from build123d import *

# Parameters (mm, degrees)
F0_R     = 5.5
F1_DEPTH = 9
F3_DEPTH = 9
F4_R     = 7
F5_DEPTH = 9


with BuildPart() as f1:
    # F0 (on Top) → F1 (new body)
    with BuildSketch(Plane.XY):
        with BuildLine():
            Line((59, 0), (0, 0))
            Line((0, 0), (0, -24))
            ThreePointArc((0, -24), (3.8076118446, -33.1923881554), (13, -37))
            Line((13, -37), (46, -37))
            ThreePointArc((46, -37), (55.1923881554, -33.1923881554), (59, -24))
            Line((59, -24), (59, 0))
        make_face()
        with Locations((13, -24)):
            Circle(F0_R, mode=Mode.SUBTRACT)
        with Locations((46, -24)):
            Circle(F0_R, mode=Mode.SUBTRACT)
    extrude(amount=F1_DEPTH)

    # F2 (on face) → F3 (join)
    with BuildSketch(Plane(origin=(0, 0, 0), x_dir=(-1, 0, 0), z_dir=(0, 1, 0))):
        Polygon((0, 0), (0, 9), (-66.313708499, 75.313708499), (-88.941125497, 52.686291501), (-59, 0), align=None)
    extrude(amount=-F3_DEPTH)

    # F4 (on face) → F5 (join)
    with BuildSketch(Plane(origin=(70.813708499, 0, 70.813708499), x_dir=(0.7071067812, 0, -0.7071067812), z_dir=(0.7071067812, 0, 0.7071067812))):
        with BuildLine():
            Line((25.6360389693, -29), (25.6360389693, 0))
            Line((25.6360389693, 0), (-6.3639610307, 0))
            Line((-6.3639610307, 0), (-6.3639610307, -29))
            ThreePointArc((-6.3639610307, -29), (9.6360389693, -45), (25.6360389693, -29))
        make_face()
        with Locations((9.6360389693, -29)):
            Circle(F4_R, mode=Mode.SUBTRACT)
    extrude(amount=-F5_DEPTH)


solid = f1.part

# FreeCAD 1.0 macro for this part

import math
import FreeCAD as App
import Part
import Sketcher

V = App.Vector
Q = App.Units.Quantity


def add_polygon(sketch, points):
    """Adds a closed chain of lines whose ends are joined by coincident constraints."""
    first, n = sketch.GeometryCount, len(points)
    for a, b in zip(points, points[1:] + points[:1]):
        sketch.addGeometry(Part.LineSegment(App.Vector(*a, 0), App.Vector(*b, 0)), False)
    for i in range(n):
        sketch.addConstraint(Sketcher.Constraint("Coincident", first + i, 2, first + (i + 1) % n, 1))

doc = App.newDocument("Part")
body = doc.addObject("PartDesign::Body", "Body")

sketch1 = body.newObject("Sketcher::SketchObject", "Sketch")
sketch1.AttachmentSupport = (doc.getObject("XY_Plane"), [""])
sketch1.MapMode = "FlatFace"
sketch1.addGeometry(Part.LineSegment(V(59, 0, 0), V(0, 0, 0)), False)
sketch1.addGeometry(Part.LineSegment(V(0, 0, 0), V(0, -24, 0)), False)
sketch1.addGeometry(Part.ArcOfCircle(Part.Circle(V(13, -24, 0), V(0, 0, 1), 13), math.radians(180), math.radians(270)), False)
sketch1.addGeometry(Part.LineSegment(V(13, -37, 0), V(46, -37, 0)), False)
sketch1.addGeometry(Part.ArcOfCircle(Part.Circle(V(46, -24, 0), V(0, 0, 1), 13), math.radians(-90), math.radians(0)), False)
sketch1.addGeometry(Part.LineSegment(V(59, -24, 0), V(59, 0, 0)), False)
sketch1.addGeometry(Part.Circle(V(13, -24, 0), V(0, 0, 1), 6), False)
sketch1.addGeometry(Part.Circle(V(46, -24, 0), V(0, 0, 1), 6), False)
sketch1.addConstraint(Sketcher.Constraint("Coincident", 0, 2, 1, 1))
sketch1.addConstraint(Sketcher.Constraint("Tangent", 1, 2, 2, 1))
sketch1.addConstraint(Sketcher.Constraint("Tangent", 2, 2, 3, 1))
sketch1.addConstraint(Sketcher.Constraint("Tangent", 3, 2, 4, 1))
sketch1.addConstraint(Sketcher.Constraint("Tangent", 4, 2, 5, 1))
sketch1.addConstraint(Sketcher.Constraint("Coincident", 5, 2, 0, 1))
sketch1.addConstraint(Sketcher.Constraint("Horizontal", 0))
sketch1.addConstraint(Sketcher.Constraint("Vertical", 1))
sketch1.addConstraint(Sketcher.Constraint("Horizontal", 3))
sketch1.addConstraint(Sketcher.Constraint("Vertical", 5))
sketch1.addConstraint(Sketcher.Constraint("Coincident", 0, 2, -1, 1))
sketch1.addConstraint(Sketcher.Constraint("Coincident", 6, 3, 2, 3))
sketch1.addConstraint(Sketcher.Constraint("Coincident", 7, 3, 4, 3))
sketch1.addConstraint(Sketcher.Constraint("Equal", 2, 4))
sketch1.addConstraint(Sketcher.Constraint("Equal", 6, 7))
sketch1.addConstraint(Sketcher.Constraint("Diameter", 6, 11.0))
sketch1.addConstraint(Sketcher.Constraint("Radius", 2, 13.0))
sketch1.addConstraint(Sketcher.Constraint("DistanceX", 0, 2, 0, 1, 59.0))
sketch1.addConstraint(Sketcher.Constraint("DistanceY", 1, 2, 1, 1, 24.0))
pad1 = body.newObject("PartDesign::Pad", "Pad")
pad1.Profile = sketch1
pad1.Length = 9

sketch2 = body.newObject("Sketcher::SketchObject", "Sketch001")
sketch2.AttachmentSupport = (doc.getObject("XZ_Plane"), [""])
sketch2.MapMode = "FlatFace"
add_polygon(sketch2, [(0, 0), (0, 9), (66, 75), (89, 53), (59, 0)])
sketch2.addConstraint(Sketcher.Constraint("Vertical", 0))
sketch2.addConstraint(Sketcher.Constraint("Horizontal", 4))
sketch2.addConstraint(Sketcher.Constraint("Coincident", 4, 2, -1, 1))
sketch2.addConstraint(Sketcher.Constraint("Perpendicular", 1, 2))
sketch2.addConstraint(Sketcher.Constraint("DistanceX", 4, 2, 4, 1, 59.0))
sketch2.addConstraint(Sketcher.Constraint("DistanceY", 0, 1, 0, 2, 9.0))
sketch2.addConstraint(Sketcher.Constraint("Angle", 1, Q("45 deg")))
sketch2.addConstraint(Sketcher.Constraint("Distance", 2, 32.0))
sketch2.addConstraint(Sketcher.Constraint("Distance", 3, 60.59964))
pad2 = body.newObject("PartDesign::Pad", "Pad001")
pad2.Profile = sketch2
pad2.Length = 9

sketch3 = body.newObject("Sketcher::SketchObject", "Sketch002")
sketch3.Placement = App.Placement(V(70.813708, 0, 70.813708), App.Rotation(V(0.707106781, 0, -0.707106781), V(0, 0.999999999, 0), V(0.707106781, 0, 0.707106781), "ZXY"))
sketch3.addGeometry(Part.LineSegment(V(26, -29, 0), V(26, 0, 0)), False)
sketch3.addGeometry(Part.LineSegment(V(26, 0, 0), V(-6, 0, 0)), False)
sketch3.addGeometry(Part.LineSegment(V(-6, 0, 0), V(-6, -29, 0)), False)
sketch3.addGeometry(Part.ArcOfCircle(Part.Circle(V(10, -29, 0), V(0, 0, 1), 16), math.radians(180), math.radians(360)), False)
sketch3.addGeometry(Part.Circle(V(10, -29, 0), V(0, 0, 1), 7), False)
sketch3.addConstraint(Sketcher.Constraint("Coincident", 0, 2, 1, 1))
sketch3.addConstraint(Sketcher.Constraint("Coincident", 1, 2, 2, 1))
sketch3.addConstraint(Sketcher.Constraint("Tangent", 2, 2, 3, 1))
sketch3.addConstraint(Sketcher.Constraint("Tangent", 3, 2, 0, 1))
sketch3.addConstraint(Sketcher.Constraint("Vertical", 0))
sketch3.addConstraint(Sketcher.Constraint("Horizontal", 1))
sketch3.addConstraint(Sketcher.Constraint("Vertical", 2))
sketch3.addConstraint(Sketcher.Constraint("Coincident", 4, 3, 3, 3))
sketch3.addConstraint(Sketcher.Constraint("PointOnObject", 0, 2, -1))
sketch3.addConstraint(Sketcher.Constraint("Diameter", 4, 14.0))
sketch3.addConstraint(Sketcher.Constraint("Radius", 3, 16.0))
sketch3.addConstraint(Sketcher.Constraint("DistanceY", 0, 1, 0, 2, 29.0))
sketch3.addConstraint(Sketcher.Constraint("DistanceX", -1, 1, 3, 3, 9.636039))
pad3 = body.newObject("PartDesign::Pad", "Pad002")
pad3.Profile = sketch3
pad3.Length = 9
pad3.Reversed = True

doc.recompute()
